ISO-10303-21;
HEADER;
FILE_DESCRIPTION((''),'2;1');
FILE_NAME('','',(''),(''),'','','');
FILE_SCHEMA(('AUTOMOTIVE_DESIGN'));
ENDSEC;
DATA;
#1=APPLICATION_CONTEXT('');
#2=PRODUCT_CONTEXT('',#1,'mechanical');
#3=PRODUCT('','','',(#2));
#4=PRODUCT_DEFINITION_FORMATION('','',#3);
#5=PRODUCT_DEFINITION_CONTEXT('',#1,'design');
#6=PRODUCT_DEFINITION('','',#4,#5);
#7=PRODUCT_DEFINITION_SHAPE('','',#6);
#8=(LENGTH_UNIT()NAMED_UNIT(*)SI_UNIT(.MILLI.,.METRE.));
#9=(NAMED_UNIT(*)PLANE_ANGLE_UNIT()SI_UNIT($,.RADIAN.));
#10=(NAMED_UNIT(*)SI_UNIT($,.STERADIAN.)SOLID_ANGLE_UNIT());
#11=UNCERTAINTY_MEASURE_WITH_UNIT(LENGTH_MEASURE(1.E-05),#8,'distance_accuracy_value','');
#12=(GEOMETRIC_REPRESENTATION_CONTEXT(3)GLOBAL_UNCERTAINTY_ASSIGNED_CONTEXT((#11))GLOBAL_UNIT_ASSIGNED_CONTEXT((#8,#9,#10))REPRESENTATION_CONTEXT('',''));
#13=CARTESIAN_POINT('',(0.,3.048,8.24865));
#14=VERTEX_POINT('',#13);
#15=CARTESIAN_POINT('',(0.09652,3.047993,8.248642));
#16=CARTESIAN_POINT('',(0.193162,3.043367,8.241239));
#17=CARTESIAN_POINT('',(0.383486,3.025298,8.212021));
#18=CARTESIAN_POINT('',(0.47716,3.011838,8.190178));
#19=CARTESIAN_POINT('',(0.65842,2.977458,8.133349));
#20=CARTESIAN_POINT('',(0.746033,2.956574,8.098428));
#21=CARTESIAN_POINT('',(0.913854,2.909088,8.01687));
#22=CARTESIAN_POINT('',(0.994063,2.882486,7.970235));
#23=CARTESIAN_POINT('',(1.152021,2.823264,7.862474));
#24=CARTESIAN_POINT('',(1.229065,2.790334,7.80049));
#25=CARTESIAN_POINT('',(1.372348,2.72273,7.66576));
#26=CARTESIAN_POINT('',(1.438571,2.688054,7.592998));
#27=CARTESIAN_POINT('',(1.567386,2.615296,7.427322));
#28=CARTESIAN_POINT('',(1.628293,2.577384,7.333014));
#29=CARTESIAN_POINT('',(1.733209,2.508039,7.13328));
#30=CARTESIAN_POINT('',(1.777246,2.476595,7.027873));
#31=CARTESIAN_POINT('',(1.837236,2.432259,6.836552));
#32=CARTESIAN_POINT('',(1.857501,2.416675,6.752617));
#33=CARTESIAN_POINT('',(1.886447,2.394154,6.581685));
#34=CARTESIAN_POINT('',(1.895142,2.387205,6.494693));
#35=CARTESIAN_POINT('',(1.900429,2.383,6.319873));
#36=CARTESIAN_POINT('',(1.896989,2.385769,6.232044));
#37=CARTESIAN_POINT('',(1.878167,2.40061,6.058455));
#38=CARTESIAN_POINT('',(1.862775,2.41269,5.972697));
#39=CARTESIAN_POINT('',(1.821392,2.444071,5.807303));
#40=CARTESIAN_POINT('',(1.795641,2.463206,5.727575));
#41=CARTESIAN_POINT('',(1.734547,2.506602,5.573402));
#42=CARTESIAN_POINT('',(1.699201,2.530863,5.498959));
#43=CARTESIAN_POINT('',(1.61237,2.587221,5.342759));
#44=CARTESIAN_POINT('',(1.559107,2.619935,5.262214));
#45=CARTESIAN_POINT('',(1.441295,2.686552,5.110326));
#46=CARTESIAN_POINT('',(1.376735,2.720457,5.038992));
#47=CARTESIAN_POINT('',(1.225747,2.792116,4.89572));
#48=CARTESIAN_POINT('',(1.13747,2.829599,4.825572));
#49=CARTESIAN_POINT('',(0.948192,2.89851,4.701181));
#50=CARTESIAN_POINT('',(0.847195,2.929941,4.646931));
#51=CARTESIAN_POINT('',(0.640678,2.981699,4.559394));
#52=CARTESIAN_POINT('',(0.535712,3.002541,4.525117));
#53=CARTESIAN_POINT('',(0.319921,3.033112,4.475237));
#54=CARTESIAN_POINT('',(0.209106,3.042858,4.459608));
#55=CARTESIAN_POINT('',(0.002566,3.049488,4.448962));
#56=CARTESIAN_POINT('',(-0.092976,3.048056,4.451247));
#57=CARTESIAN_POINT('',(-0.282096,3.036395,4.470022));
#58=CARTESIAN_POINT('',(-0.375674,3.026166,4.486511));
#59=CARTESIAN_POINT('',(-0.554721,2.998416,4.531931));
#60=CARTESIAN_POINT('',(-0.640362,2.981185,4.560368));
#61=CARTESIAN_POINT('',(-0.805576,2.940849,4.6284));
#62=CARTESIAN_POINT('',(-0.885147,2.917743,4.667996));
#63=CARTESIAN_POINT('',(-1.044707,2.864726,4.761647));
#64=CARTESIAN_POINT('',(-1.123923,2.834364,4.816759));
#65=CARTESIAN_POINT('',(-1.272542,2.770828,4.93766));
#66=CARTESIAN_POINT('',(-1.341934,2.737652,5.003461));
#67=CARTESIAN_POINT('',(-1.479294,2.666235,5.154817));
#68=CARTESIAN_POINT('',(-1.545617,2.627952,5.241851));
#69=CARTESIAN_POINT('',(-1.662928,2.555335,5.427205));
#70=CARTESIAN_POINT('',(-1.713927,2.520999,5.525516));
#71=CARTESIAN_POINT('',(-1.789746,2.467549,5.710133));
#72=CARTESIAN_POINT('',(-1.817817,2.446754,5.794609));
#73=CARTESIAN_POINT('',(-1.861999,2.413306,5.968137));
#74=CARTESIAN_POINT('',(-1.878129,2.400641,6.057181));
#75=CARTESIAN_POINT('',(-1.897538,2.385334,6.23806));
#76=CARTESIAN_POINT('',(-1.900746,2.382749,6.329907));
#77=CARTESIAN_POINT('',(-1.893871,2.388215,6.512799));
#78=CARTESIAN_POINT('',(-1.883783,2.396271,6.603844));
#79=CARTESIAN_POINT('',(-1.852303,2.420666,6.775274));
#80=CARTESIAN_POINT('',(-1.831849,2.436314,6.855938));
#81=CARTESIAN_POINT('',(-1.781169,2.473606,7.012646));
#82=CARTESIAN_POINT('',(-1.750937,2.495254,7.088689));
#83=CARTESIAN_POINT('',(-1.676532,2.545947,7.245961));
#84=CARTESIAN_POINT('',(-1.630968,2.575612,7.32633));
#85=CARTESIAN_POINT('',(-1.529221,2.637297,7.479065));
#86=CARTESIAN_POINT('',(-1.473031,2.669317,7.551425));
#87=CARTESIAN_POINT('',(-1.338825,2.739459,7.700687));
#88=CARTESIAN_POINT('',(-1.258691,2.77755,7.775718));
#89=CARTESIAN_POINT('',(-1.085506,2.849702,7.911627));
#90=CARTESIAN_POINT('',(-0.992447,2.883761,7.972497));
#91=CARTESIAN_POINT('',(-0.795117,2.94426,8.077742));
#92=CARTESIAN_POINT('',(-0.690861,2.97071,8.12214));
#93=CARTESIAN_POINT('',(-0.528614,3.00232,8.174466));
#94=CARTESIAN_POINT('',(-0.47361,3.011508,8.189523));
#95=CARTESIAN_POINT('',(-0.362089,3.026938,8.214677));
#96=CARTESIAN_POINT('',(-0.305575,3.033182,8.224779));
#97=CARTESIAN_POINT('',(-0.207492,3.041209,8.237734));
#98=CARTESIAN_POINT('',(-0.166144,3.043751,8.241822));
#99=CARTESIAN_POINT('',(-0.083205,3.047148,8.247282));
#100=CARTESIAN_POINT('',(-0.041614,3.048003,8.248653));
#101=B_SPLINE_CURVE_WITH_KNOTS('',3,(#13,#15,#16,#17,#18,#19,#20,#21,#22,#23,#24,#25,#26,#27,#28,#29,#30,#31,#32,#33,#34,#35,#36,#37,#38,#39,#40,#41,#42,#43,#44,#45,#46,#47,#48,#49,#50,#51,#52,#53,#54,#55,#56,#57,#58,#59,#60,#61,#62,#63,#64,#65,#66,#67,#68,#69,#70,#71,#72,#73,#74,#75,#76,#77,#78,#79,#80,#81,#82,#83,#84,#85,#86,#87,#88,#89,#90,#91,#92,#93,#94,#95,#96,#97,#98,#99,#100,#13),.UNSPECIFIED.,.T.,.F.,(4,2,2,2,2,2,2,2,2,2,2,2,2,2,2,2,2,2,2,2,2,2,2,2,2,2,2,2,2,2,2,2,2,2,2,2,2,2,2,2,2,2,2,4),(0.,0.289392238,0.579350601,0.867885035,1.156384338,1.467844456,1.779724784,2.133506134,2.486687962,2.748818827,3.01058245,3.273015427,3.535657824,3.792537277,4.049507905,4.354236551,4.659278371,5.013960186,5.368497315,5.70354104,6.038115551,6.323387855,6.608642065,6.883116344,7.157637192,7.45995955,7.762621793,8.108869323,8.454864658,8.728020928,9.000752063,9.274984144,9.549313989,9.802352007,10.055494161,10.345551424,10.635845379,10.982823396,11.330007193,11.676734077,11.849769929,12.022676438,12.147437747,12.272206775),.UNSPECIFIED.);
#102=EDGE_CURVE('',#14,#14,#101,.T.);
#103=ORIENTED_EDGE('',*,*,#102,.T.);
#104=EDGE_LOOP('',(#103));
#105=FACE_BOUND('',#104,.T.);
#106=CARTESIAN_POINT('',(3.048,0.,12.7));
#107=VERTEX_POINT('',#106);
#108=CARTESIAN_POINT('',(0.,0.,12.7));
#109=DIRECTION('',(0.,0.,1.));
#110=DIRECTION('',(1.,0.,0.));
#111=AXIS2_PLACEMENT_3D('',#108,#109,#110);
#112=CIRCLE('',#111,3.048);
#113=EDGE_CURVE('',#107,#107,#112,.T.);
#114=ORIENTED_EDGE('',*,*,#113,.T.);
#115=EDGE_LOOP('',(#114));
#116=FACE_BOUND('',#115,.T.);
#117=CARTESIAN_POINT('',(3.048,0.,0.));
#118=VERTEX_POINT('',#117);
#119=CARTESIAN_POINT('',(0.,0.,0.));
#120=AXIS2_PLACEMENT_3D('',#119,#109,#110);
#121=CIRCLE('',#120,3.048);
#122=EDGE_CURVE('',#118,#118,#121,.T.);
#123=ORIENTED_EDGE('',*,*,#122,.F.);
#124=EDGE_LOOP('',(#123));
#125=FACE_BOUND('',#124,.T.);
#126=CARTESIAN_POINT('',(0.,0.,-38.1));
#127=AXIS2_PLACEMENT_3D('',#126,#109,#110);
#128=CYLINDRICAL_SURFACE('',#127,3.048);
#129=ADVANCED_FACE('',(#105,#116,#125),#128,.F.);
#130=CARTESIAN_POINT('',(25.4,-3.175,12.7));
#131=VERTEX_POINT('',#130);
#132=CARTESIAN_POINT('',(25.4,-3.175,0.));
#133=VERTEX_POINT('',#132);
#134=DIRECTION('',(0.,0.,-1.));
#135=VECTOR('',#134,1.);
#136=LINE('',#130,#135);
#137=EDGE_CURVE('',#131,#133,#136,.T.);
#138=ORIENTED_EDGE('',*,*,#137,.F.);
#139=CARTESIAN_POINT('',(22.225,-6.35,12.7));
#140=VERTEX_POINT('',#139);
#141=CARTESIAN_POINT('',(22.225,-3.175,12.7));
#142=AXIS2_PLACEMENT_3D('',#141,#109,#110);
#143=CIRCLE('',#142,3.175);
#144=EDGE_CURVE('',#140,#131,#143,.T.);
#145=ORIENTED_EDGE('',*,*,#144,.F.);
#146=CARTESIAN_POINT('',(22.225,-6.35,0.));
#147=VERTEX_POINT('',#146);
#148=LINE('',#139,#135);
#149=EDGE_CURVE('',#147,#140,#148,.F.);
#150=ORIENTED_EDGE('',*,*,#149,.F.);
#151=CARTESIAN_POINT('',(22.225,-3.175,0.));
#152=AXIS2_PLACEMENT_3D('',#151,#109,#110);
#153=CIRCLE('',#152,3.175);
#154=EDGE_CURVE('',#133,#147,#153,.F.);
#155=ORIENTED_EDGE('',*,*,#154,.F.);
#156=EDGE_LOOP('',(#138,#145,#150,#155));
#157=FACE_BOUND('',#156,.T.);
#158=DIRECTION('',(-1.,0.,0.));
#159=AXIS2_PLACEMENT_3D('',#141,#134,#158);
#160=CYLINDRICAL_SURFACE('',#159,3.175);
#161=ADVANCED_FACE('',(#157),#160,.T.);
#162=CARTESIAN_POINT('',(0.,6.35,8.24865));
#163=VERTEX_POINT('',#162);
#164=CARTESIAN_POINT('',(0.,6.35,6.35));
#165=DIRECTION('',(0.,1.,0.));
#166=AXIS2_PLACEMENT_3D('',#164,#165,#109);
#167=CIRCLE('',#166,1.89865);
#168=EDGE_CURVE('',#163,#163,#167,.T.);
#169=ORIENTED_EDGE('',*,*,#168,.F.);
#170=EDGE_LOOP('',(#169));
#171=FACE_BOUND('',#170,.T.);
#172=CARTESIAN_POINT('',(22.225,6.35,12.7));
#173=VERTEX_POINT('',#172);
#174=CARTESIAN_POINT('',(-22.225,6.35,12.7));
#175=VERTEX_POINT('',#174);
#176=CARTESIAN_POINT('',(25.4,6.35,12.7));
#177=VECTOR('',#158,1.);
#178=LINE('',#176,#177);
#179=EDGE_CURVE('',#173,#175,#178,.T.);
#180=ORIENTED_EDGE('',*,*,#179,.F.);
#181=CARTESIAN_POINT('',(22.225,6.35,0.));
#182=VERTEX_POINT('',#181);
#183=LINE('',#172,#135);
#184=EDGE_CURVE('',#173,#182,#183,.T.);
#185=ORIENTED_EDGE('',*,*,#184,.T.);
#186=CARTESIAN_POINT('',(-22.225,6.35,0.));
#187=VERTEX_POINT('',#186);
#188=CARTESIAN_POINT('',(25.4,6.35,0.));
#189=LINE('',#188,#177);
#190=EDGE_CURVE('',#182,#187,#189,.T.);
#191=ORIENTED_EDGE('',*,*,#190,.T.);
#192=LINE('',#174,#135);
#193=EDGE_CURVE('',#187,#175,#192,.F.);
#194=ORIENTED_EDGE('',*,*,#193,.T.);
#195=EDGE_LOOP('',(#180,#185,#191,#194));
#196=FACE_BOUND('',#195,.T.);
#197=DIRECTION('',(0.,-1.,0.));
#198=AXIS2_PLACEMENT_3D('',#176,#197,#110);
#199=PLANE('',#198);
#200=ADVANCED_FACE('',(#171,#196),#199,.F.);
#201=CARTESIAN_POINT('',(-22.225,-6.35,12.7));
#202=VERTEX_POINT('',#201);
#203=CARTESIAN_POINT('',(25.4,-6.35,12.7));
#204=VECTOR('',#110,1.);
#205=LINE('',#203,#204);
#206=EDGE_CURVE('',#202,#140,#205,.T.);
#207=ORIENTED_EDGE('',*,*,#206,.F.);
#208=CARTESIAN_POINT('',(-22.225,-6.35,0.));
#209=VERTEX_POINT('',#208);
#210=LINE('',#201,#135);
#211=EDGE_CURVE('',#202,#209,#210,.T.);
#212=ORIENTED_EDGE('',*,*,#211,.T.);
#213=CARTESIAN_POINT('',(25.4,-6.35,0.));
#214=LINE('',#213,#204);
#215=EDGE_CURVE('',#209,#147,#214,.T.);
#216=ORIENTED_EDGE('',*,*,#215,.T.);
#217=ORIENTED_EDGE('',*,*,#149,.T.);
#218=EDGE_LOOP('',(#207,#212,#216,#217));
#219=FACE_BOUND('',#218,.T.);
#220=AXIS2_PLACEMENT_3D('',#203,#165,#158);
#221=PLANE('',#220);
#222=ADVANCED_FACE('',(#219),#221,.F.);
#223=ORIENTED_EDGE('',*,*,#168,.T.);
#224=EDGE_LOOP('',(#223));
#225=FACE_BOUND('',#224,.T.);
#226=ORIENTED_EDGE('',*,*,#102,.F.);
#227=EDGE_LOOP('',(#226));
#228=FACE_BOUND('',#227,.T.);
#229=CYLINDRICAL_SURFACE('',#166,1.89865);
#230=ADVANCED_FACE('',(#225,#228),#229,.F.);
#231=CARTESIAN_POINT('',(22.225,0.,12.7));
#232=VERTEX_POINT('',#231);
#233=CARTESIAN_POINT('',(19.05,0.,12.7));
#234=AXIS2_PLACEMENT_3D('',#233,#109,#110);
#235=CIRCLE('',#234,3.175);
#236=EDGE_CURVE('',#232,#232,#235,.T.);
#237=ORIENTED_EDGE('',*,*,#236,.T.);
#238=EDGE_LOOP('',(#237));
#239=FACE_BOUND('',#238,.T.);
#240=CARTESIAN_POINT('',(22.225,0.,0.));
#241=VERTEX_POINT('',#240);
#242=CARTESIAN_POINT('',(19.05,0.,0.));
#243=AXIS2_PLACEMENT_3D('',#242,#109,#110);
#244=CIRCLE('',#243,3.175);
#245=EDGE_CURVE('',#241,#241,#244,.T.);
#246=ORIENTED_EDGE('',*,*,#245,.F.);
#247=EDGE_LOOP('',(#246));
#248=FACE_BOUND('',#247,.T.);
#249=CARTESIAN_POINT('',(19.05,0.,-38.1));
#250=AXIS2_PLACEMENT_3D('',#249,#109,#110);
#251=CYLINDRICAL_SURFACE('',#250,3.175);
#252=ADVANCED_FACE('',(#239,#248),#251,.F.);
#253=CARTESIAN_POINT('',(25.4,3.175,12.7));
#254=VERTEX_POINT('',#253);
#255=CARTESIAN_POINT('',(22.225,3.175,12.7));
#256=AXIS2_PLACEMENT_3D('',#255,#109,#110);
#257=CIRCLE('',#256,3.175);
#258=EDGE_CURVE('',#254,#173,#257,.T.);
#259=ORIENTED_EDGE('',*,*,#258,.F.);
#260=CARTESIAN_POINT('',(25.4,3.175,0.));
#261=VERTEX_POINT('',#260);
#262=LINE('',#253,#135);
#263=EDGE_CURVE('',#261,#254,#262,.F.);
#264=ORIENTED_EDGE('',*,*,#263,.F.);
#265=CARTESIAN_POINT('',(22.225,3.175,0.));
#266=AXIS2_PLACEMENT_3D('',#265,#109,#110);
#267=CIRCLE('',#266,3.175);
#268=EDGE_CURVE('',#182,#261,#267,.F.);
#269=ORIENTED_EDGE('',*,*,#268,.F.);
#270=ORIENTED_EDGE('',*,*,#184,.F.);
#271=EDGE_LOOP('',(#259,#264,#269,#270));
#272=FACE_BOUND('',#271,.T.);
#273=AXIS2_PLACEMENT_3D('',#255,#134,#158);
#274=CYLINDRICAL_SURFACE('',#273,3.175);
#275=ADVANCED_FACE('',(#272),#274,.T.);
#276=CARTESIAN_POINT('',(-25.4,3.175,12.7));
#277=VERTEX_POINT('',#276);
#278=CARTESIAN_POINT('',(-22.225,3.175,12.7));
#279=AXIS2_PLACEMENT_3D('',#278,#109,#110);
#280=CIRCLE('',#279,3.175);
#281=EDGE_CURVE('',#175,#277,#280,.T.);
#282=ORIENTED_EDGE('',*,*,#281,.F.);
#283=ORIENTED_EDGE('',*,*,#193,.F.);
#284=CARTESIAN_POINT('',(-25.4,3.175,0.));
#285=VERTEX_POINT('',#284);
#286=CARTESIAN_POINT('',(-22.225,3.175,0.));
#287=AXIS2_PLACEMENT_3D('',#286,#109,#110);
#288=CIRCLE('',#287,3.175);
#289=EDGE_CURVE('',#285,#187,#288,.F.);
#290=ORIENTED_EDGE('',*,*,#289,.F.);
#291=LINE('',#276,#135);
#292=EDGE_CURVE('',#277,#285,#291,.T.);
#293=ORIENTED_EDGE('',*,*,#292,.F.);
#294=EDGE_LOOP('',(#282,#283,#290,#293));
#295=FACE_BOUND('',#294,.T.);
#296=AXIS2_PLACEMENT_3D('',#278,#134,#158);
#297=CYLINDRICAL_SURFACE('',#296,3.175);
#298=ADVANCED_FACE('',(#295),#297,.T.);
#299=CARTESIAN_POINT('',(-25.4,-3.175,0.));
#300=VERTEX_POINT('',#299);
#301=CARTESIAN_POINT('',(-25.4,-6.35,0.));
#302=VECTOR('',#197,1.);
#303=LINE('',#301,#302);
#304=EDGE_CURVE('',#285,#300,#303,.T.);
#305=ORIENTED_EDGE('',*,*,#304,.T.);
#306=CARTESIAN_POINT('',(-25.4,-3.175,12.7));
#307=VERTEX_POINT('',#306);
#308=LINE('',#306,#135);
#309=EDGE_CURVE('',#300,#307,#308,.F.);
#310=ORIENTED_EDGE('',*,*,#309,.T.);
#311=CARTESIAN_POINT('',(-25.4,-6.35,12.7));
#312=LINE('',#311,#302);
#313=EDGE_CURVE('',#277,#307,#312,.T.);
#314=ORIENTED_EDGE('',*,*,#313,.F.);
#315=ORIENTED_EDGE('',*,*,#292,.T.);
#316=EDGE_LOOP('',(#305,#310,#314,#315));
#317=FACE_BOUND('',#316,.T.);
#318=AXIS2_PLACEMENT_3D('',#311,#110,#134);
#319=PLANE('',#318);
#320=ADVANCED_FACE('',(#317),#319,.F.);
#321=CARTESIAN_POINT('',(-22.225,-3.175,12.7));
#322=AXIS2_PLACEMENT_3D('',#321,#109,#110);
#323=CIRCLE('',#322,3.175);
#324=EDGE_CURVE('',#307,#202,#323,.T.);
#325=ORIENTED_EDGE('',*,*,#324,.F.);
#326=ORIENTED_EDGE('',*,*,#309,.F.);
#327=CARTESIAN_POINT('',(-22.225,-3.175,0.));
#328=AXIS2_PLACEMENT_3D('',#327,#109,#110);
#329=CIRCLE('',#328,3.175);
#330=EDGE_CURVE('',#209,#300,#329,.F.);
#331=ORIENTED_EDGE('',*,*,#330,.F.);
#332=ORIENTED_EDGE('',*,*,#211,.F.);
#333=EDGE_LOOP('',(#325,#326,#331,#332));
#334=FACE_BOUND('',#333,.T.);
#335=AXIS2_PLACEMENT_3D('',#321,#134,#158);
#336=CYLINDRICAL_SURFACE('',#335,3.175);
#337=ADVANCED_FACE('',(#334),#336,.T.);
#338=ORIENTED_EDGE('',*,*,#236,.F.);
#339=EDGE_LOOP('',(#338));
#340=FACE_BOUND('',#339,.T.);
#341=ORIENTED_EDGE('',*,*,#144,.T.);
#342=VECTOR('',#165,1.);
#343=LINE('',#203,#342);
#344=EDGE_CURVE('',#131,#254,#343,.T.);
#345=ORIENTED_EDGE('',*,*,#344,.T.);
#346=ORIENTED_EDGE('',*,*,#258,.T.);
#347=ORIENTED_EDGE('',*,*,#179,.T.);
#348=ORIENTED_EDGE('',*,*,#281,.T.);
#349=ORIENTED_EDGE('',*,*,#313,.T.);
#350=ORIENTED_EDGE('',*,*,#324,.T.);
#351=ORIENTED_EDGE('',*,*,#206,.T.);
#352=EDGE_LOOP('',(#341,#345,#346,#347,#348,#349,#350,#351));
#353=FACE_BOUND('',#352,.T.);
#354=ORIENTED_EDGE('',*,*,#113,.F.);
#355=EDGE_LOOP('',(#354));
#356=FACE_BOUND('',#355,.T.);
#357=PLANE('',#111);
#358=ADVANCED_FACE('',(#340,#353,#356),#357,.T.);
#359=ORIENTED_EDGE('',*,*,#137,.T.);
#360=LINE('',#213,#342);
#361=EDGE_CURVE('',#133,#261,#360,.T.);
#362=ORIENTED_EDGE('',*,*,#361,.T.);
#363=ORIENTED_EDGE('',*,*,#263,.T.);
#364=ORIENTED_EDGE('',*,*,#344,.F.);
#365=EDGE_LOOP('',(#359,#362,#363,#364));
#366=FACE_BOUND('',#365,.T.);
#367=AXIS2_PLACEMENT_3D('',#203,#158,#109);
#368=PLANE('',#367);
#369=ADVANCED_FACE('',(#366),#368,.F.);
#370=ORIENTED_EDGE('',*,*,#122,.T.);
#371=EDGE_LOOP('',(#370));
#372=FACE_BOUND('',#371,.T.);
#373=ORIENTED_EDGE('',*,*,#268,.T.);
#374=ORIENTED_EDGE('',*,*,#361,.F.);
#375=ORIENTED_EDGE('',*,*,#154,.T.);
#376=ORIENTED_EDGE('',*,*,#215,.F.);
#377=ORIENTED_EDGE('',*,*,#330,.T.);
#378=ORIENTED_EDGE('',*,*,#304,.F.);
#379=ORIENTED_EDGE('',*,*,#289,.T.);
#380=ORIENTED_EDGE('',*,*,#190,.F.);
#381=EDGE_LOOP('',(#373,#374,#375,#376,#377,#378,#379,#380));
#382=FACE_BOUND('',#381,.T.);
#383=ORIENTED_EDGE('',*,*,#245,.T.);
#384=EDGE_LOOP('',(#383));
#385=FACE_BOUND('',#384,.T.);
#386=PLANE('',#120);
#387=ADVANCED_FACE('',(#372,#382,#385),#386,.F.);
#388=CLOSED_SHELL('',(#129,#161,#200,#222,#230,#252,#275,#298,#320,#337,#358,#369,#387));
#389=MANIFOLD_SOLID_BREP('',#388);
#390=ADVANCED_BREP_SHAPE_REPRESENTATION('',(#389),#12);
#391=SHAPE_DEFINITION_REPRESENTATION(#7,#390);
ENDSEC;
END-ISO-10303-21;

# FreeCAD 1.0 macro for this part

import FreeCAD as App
import Part
import Sketcher

V = App.Vector
Q = App.Units.Quantity


def edges_at(feature, points):
    """Names of the edges that pass closest to the given points."""
    edges = feature.Shape.Edges
    near = lambda p: min(range(len(edges)), key=lambda i: edges[i].distToShape(Part.Vertex(*p))[0])
    return sorted({f"Edge{near(p) + 1}" for p in points})

doc = App.newDocument("Part")
params = doc.addObject("Spreadsheet::Sheet", "Params")
for row, (alias, value) in enumerate([
    ("sketch1_width", "2 in"),
    ("sketch1_height", "0.5 in"),
    ("pad1_length", "0.5 in"),
    ("sketch2_diameter", "0.24 in"),
    ("pocket1_length", "2 in"),
    ("sketch3_diameter", "0.25 in"),
    ("pocket2_length", "2 in"),
    ("fillet_radius", "0.125 in"),
], start=1):
    params.set(f"A{row}", alias)
    params.set(f"B{row}", "=" + value)
    params.setAlias(f"B{row}", alias)

body = doc.addObject("PartDesign::Body", "Body")

sketch1 = body.newObject("Sketcher::SketchObject", "Sketch")
sketch1.AttachmentSupport = (doc.getObject("XY_Plane"), [""])
sketch1.MapMode = "FlatFace"
sketch1.addGeometry([
    Part.LineSegment(V(-25, 6, 0), V(-25, -6, 0)),
    Part.LineSegment(V(-25, -6, 0), V(25, -6, 0)),
    Part.LineSegment(V(25, -6, 0), V(25, 6, 0)),
    Part.LineSegment(V(25, 6, 0), V(-25, 6, 0)),
], False)
sketch1.addConstraint([
    Sketcher.Constraint("Coincident", 0, 2, 1, 1),
    Sketcher.Constraint("Coincident", 1, 2, 2, 1),
    Sketcher.Constraint("Coincident", 2, 2, 3, 1),
    Sketcher.Constraint("Coincident", 3, 2, 0, 1),
    Sketcher.Constraint("Vertical", 0),
    Sketcher.Constraint("Horizontal", 1),
    Sketcher.Constraint("Vertical", 2),
    Sketcher.Constraint("Horizontal", 3),
    Sketcher.Constraint("Symmetric", 0, 2, 2, 2, -1, 1),
    Sketcher.Constraint("DistanceX", 1, 1, 1, 2, Q("2 in")),
    Sketcher.Constraint("DistanceY", 0, 2, 0, 1, Q("0.5 in")),
])
sketch1.setExpression("Constraints[9]", "Params.sketch1_width")
sketch1.setExpression("Constraints[10]", "Params.sketch1_height")
pad1 = body.newObject("PartDesign::Pad", "Pad")
pad1.Profile = sketch1
pad1.setExpression("Length", "Params.pad1_length")

sketch2 = body.newObject("Sketcher::SketchObject", "Sketch001")
sketch2.AttachmentSupport = (doc.getObject("XY_Plane"), [""])
sketch2.MapMode = "FlatFace"
sketch2.AttachmentOffset = App.Placement(V(0, 0, 0.5 * 25.4), App.Rotation())
sketch2.addGeometry(Part.Circle(V(0, 0, 0), V(0, 0, 1), 3), False)
sketch2.addConstraint([
    Sketcher.Constraint("Coincident", 0, 3, -1, 1),
    Sketcher.Constraint("Diameter", 0, Q("0.24 in")),
])
sketch2.setExpression("Constraints[1]", "Params.sketch2_diameter")
pocket1 = body.newObject("PartDesign::Pocket", "Pocket")
pocket1.Profile = sketch2
pocket1.setExpression("Length", "Params.pocket1_length")

sketch3 = body.newObject("Sketcher::SketchObject", "Sketch002")
sketch3.AttachmentSupport = (doc.getObject("XY_Plane"), [""])
sketch3.MapMode = "FlatFace"
sketch3.AttachmentOffset = App.Placement(V(0, 0, 0.5 * 25.4), App.Rotation())
sketch3.addGeometry(Part.Circle(V(19.1, 0, 0), V(0, 0, 1), 3.2), False)
sketch3.addConstraint([
    Sketcher.Constraint("PointOnObject", 0, 3, -1),
    Sketcher.Constraint("Diameter", 0, Q("0.25 in")),
    Sketcher.Constraint("DistanceX", -1, 1, 0, 3, Q("0.75 in")),
])
sketch3.setExpression("Constraints[1]", "Params.sketch3_diameter")
pocket2 = body.newObject("PartDesign::Pocket", "Pocket001")
pocket2.Profile = sketch3
pocket2.setExpression("Length", "Params.pocket2_length")

sketch4 = body.newObject("Sketcher::SketchObject", "Sketch003")
sketch4.AttachmentSupport = (doc.getObject("XZ_Plane"), [""])
sketch4.MapMode = "FlatFace"
sketch4.AttachmentOffset = App.Placement(V(0, 0, -0.25 * 25.4), App.Rotation())
sketch4.addGeometry(Part.Circle(V(0, 6.3, 0), V(0, 0, 1), 1.9), False)
sketch4.addConstraint([
    Sketcher.Constraint("PointOnObject", 0, 3, -2),
    Sketcher.Constraint("Diameter", 0, Q("0.1495 in")),
    Sketcher.Constraint("DistanceY", -1, 1, 0, 3, Q("0.25 in")),
])
pocket3 = body.newObject("PartDesign::Pocket", "Pocket002")
pocket3.Profile = sketch4
pocket3.Type = "UpToFirst"
pocket3.Reversed = True
doc.recompute()

fillet = body.newObject("PartDesign::Fillet", "Fillet")
fillet.Base = (pocket3, edges_at(pocket3, [
    (-25.4, 6.35, 6.35),
    (25.4, 6.35, 6.35),
    (25.4, -6.35, 6.35),
    (-25.4, -6.35, 6.35),
]))
fillet.setExpression("Radius", "Params.fillet_radius")

doc.recompute()
